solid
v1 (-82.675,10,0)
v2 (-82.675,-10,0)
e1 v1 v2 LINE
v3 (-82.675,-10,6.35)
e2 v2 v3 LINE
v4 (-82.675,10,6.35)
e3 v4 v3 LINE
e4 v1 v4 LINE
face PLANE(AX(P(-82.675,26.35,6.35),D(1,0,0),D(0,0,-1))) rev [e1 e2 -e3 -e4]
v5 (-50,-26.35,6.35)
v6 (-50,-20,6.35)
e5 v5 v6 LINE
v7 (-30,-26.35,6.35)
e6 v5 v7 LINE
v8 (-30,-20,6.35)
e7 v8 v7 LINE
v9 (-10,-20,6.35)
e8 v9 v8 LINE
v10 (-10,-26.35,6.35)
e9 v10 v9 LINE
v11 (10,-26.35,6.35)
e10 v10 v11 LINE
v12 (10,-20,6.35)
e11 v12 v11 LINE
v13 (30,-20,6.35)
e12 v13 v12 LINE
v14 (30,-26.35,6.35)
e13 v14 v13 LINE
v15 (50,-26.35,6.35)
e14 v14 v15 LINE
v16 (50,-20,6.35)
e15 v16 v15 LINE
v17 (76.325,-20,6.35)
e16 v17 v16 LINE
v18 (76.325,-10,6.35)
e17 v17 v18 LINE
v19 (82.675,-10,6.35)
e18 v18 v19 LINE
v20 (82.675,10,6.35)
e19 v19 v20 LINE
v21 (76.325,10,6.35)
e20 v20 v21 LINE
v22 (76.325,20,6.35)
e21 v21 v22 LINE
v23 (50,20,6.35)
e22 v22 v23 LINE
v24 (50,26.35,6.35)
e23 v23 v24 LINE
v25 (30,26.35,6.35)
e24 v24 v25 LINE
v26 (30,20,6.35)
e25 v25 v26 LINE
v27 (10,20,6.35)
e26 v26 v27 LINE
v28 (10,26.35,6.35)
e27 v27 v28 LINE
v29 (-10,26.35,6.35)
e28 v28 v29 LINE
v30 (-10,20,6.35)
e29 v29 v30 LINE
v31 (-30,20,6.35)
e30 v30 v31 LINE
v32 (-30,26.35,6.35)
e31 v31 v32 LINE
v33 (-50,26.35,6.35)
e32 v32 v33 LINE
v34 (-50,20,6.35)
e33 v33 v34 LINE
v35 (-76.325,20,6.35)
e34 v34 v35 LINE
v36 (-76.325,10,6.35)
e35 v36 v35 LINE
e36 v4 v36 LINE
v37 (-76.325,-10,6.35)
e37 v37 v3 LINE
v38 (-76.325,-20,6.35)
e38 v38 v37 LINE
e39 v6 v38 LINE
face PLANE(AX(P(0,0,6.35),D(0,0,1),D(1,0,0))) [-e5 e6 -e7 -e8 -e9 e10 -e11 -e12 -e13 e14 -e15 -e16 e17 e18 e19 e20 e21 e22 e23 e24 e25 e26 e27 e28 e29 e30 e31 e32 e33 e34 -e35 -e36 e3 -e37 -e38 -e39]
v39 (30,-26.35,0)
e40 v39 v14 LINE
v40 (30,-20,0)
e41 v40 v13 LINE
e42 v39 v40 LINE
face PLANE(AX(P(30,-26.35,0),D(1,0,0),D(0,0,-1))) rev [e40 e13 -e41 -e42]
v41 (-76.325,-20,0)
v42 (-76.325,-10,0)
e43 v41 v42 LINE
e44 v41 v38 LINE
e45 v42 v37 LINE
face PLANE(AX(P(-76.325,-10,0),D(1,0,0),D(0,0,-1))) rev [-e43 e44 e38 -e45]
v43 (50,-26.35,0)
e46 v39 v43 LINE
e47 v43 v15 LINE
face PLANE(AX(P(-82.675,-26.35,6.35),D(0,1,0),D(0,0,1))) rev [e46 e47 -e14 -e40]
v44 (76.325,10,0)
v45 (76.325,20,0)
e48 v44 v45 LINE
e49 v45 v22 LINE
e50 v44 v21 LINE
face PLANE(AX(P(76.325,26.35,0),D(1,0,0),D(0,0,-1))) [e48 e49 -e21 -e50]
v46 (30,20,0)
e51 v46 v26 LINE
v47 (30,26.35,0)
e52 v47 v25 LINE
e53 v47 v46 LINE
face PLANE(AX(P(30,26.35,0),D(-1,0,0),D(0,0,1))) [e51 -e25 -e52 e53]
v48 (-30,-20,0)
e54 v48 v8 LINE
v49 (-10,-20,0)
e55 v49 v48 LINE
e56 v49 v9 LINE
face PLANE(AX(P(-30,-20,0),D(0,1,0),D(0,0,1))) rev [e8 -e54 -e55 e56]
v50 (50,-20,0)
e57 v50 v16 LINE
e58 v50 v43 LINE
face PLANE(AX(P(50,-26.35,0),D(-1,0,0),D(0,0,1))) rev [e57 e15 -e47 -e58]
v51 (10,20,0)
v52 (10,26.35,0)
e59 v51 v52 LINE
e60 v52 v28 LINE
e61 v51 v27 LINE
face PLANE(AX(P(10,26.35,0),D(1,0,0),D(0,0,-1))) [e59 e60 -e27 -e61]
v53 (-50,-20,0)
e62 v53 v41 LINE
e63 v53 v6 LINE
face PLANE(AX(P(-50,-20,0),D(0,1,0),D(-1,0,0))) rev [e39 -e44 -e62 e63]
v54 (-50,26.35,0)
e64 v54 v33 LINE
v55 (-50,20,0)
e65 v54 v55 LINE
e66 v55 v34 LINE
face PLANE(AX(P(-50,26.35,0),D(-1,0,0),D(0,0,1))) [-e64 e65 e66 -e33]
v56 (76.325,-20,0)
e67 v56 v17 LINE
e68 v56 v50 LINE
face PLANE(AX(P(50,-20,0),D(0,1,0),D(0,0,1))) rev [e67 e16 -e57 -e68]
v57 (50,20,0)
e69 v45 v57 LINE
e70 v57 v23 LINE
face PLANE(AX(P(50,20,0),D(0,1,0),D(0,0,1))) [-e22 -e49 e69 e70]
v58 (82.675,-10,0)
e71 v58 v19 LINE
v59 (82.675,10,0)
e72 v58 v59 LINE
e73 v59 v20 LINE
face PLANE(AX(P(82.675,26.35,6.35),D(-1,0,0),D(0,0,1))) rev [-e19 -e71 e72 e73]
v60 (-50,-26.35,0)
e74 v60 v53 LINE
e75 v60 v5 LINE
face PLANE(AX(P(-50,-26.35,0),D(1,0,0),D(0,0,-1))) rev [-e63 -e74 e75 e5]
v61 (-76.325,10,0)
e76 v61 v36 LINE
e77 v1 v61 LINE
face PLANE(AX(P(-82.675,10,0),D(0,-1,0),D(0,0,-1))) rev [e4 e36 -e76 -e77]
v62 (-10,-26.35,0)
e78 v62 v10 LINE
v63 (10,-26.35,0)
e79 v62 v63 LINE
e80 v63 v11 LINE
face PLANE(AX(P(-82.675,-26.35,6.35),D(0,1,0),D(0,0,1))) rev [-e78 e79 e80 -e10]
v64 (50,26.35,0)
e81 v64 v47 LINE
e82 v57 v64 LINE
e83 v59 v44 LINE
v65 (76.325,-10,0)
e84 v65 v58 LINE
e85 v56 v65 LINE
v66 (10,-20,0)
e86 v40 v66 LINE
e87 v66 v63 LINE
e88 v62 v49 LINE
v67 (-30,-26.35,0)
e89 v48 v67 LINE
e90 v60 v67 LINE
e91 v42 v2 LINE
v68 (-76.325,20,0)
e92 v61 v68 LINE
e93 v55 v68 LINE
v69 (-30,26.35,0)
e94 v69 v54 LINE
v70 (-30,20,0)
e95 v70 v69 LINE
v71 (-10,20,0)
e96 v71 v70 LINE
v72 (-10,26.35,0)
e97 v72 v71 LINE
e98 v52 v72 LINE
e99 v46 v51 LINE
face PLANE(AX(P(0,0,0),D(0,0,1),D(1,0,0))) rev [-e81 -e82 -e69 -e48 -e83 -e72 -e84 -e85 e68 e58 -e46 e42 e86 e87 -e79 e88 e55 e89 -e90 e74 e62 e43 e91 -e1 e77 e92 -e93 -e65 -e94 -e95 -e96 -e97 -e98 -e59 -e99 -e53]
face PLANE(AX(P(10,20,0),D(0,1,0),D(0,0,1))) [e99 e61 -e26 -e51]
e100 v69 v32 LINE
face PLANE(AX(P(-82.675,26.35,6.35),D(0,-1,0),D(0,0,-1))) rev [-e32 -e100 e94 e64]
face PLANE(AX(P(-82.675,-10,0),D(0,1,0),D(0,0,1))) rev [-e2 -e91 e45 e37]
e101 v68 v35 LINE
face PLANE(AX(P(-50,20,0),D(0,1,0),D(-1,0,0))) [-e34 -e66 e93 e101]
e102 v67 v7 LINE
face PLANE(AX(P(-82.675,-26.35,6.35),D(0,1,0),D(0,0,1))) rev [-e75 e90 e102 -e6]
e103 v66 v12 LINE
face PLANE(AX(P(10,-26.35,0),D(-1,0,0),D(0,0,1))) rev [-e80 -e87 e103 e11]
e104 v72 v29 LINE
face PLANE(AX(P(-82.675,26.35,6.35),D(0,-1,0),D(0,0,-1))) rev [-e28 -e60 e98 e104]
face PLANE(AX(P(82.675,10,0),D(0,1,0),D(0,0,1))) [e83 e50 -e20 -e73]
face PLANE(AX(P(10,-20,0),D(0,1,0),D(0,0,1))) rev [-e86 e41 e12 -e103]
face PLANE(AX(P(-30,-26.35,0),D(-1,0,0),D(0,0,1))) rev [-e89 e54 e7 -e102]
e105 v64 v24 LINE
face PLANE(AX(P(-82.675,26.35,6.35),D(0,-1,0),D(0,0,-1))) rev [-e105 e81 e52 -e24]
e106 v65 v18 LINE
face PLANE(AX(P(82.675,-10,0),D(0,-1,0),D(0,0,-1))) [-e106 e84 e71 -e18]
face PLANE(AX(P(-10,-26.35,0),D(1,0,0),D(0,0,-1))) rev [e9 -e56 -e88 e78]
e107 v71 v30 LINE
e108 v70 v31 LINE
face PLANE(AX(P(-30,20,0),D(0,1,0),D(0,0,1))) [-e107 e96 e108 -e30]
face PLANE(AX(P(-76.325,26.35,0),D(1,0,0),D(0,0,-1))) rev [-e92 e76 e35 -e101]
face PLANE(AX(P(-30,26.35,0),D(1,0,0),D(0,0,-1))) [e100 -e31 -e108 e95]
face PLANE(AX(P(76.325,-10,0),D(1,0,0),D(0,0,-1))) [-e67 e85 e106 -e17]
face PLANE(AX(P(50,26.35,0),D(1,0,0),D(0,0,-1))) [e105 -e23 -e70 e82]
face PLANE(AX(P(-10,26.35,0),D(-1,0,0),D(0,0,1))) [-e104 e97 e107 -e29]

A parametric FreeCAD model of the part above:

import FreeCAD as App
import Part
import Sketcher


def add_polygon(sketch, points):
    """Adds a closed chain of lines whose ends are joined by coincident constraints."""
    first, n = sketch.GeometryCount, len(points)
    for a, b in zip(points, points[1:] + points[:1]):
        sketch.addGeometry(Part.LineSegment(App.Vector(*a, 0), App.Vector(*b, 0)), False)
    for i in range(n):
        sketch.addConstraint(Sketcher.Constraint("Coincident", first + i, 2, first + (i + 1) % n, 1))

doc = App.newDocument("Part")
body = doc.addObject("PartDesign::Body", "Body")

sketch1 = body.newObject("Sketcher::SketchObject", "Sketch")
sketch1.AttachmentSupport = (doc.getObject("XY_Plane"), [""])
sketch1.MapMode = "FlatFace"
add_polygon(sketch1, [(-82.675, 26.35), (-82.675, -26.35), (82.675, -26.35), (82.675, 26.35)])
sketch1.addConstraint([
    Sketcher.Constraint("Vertical", 0),
    Sketcher.Constraint("Horizontal", 1),
    Sketcher.Constraint("Vertical", 2),
    Sketcher.Constraint("Horizontal", 3),
    Sketcher.Constraint("Symmetric", 0, 2, 2, 2, -1, 1),
    Sketcher.Constraint("DistanceY", 0, 2, 0, 1, 52.7),
    Sketcher.Constraint("DistanceX", 1, 1, 1, 2, 165.35),
])
pad1 = body.newObject("PartDesign::Pad", "Pad")
pad1.Profile = sketch1
pad1.Length = 6.35

sketch2 = body.newObject("Sketcher::SketchObject", "Sketch001")
sketch2.AttachmentSupport = (doc.getObject("XY_Plane"), [""])
sketch2.MapMode = "FlatFace"
sketch2.AttachmentOffset = App.Placement(App.Vector(0, 0, 6.35), App.Rotation())
add_polygon(sketch2, [(-82.675, -10), (-82.675, -26.35), (-76.325, -26.35), (-76.325, -10)])
add_polygon(sketch2, [(-82.675, 26.35), (-82.675, 10), (-76.325, 10), (-76.325, 26.35)])
sketch2.addConstraint([
    Sketcher.Constraint("Vertical", 0),
    Sketcher.Constraint("Horizontal", 1),
    Sketcher.Constraint("Vertical", 2),
    Sketcher.Constraint("Horizontal", 3),
    Sketcher.Constraint("Vertical", 4),
    Sketcher.Constraint("Horizontal", 5),
    Sketcher.Constraint("Vertical", 6),
    Sketcher.Constraint("Horizontal", 7),
    Sketcher.Constraint("Symmetric", 3, 2, 4, 2, -1),
    Sketcher.Constraint("Symmetric", 1, 2, 6, 2, -1),
    Sketcher.Constraint("DistanceY", 2, 2, -1, 1, 10.0),
    Sketcher.Constraint("DistanceX", 1, 1, 1, 2, 6.35),
    Sketcher.Constraint("DistanceY", 0, 2, 0, 1, 16.35),
    Sketcher.Constraint("DistanceX", 0, 2, -1, 1, 82.675),
])
pocket1 = body.newObject("PartDesign::Pocket", "Pocket")
pocket1.Profile = sketch2
pocket1.Type = "ThroughAll"
doc.recompute()

mirrored = body.newObject("PartDesign::Mirrored", "Mirrored")
mirrored.Originals = [pocket1]
mirrored.MirrorPlane = (doc.getObject("YZ_Plane"), [""])
body.Tip = mirrored

sketch3 = body.newObject("Sketcher::SketchObject", "Sketch002")
sketch3.AttachmentSupport = (doc.getObject("XY_Plane"), [""])
sketch3.MapMode = "FlatFace"
sketch3.AttachmentOffset = App.Placement(App.Vector(0, 0, 6.35), App.Rotation())
add_polygon(sketch3, [(-30, -20), (-30, -26.35), (-10, -26.35), (-10, -20)])
add_polygon(sketch3, [(10, -20), (10, -26.35), (30, -26.35), (30, -20)])
add_polygon(sketch3, [(50, -20), (50, -26.35), (76.325, -26.35), (76.325, -20)])
add_polygon(sketch3, [(-76.325, -20), (-76.325, -26.35), (-50, -26.35), (-50, -20)])
sketch3.addConstraint([
    Sketcher.Constraint("Vertical", 0),
    Sketcher.Constraint("Horizontal", 1),
    Sketcher.Constraint("Vertical", 2),
    Sketcher.Constraint("Horizontal", 3),
    Sketcher.Constraint("Vertical", 4),
    Sketcher.Constraint("Horizontal", 5),
    Sketcher.Constraint("Vertical", 6),
    Sketcher.Constraint("Horizontal", 7),
    Sketcher.Constraint("Vertical", 8),
    Sketcher.Constraint("Horizontal", 9),
    Sketcher.Constraint("Vertical", 10),
    Sketcher.Constraint("Horizontal", 11),
    Sketcher.Constraint("Vertical", 12),
    Sketcher.Constraint("Horizontal", 13),
    Sketcher.Constraint("Vertical", 14),
    Sketcher.Constraint("Horizontal", 15),
    Sketcher.Constraint("Symmetric", 1, 2, 4, 2, -2),
    Sketcher.Constraint("Symmetric", 3, 2, 6, 2, -2),
    Sketcher.Constraint("Symmetric", 9, 2, 12, 2, -2),
    Sketcher.Constraint("Symmetric", 11, 2, 14, 2, -2),
    Sketcher.Constraint("Horizontal", 5, 2, 8, 2),
    Sketcher.Constraint("Horizontal", 7, 2, 10, 2),
    Sketcher.Constraint("DistanceX", 1, 1, 1, 2, 20.0),
    Sketcher.Constraint("DistanceX", 0, 2, -1, 1, 30.0),
    Sketcher.Constraint("DistanceY", 2, 2, -1, 1, 20.0),
    Sketcher.Constraint("DistanceX", -1, 1, 8, 2, 50.0),
    Sketcher.Constraint("DistanceY", 0, 2, 0, 1, 6.35),
    Sketcher.Constraint("DistanceX", 9, 1, 9, 2, 26.325),
])
pocket2 = body.newObject("PartDesign::Pocket", "Pocket001")
pocket2.Profile = sketch3
pocket2.Type = "ThroughAll"
doc.recompute()

mirrored2 = body.newObject("PartDesign::Mirrored", "Mirrored001")
mirrored2.Originals = [pocket2]
mirrored2.MirrorPlane = (doc.getObject("XZ_Plane"), [""])
body.Tip = mirrored2

doc.recompute()
